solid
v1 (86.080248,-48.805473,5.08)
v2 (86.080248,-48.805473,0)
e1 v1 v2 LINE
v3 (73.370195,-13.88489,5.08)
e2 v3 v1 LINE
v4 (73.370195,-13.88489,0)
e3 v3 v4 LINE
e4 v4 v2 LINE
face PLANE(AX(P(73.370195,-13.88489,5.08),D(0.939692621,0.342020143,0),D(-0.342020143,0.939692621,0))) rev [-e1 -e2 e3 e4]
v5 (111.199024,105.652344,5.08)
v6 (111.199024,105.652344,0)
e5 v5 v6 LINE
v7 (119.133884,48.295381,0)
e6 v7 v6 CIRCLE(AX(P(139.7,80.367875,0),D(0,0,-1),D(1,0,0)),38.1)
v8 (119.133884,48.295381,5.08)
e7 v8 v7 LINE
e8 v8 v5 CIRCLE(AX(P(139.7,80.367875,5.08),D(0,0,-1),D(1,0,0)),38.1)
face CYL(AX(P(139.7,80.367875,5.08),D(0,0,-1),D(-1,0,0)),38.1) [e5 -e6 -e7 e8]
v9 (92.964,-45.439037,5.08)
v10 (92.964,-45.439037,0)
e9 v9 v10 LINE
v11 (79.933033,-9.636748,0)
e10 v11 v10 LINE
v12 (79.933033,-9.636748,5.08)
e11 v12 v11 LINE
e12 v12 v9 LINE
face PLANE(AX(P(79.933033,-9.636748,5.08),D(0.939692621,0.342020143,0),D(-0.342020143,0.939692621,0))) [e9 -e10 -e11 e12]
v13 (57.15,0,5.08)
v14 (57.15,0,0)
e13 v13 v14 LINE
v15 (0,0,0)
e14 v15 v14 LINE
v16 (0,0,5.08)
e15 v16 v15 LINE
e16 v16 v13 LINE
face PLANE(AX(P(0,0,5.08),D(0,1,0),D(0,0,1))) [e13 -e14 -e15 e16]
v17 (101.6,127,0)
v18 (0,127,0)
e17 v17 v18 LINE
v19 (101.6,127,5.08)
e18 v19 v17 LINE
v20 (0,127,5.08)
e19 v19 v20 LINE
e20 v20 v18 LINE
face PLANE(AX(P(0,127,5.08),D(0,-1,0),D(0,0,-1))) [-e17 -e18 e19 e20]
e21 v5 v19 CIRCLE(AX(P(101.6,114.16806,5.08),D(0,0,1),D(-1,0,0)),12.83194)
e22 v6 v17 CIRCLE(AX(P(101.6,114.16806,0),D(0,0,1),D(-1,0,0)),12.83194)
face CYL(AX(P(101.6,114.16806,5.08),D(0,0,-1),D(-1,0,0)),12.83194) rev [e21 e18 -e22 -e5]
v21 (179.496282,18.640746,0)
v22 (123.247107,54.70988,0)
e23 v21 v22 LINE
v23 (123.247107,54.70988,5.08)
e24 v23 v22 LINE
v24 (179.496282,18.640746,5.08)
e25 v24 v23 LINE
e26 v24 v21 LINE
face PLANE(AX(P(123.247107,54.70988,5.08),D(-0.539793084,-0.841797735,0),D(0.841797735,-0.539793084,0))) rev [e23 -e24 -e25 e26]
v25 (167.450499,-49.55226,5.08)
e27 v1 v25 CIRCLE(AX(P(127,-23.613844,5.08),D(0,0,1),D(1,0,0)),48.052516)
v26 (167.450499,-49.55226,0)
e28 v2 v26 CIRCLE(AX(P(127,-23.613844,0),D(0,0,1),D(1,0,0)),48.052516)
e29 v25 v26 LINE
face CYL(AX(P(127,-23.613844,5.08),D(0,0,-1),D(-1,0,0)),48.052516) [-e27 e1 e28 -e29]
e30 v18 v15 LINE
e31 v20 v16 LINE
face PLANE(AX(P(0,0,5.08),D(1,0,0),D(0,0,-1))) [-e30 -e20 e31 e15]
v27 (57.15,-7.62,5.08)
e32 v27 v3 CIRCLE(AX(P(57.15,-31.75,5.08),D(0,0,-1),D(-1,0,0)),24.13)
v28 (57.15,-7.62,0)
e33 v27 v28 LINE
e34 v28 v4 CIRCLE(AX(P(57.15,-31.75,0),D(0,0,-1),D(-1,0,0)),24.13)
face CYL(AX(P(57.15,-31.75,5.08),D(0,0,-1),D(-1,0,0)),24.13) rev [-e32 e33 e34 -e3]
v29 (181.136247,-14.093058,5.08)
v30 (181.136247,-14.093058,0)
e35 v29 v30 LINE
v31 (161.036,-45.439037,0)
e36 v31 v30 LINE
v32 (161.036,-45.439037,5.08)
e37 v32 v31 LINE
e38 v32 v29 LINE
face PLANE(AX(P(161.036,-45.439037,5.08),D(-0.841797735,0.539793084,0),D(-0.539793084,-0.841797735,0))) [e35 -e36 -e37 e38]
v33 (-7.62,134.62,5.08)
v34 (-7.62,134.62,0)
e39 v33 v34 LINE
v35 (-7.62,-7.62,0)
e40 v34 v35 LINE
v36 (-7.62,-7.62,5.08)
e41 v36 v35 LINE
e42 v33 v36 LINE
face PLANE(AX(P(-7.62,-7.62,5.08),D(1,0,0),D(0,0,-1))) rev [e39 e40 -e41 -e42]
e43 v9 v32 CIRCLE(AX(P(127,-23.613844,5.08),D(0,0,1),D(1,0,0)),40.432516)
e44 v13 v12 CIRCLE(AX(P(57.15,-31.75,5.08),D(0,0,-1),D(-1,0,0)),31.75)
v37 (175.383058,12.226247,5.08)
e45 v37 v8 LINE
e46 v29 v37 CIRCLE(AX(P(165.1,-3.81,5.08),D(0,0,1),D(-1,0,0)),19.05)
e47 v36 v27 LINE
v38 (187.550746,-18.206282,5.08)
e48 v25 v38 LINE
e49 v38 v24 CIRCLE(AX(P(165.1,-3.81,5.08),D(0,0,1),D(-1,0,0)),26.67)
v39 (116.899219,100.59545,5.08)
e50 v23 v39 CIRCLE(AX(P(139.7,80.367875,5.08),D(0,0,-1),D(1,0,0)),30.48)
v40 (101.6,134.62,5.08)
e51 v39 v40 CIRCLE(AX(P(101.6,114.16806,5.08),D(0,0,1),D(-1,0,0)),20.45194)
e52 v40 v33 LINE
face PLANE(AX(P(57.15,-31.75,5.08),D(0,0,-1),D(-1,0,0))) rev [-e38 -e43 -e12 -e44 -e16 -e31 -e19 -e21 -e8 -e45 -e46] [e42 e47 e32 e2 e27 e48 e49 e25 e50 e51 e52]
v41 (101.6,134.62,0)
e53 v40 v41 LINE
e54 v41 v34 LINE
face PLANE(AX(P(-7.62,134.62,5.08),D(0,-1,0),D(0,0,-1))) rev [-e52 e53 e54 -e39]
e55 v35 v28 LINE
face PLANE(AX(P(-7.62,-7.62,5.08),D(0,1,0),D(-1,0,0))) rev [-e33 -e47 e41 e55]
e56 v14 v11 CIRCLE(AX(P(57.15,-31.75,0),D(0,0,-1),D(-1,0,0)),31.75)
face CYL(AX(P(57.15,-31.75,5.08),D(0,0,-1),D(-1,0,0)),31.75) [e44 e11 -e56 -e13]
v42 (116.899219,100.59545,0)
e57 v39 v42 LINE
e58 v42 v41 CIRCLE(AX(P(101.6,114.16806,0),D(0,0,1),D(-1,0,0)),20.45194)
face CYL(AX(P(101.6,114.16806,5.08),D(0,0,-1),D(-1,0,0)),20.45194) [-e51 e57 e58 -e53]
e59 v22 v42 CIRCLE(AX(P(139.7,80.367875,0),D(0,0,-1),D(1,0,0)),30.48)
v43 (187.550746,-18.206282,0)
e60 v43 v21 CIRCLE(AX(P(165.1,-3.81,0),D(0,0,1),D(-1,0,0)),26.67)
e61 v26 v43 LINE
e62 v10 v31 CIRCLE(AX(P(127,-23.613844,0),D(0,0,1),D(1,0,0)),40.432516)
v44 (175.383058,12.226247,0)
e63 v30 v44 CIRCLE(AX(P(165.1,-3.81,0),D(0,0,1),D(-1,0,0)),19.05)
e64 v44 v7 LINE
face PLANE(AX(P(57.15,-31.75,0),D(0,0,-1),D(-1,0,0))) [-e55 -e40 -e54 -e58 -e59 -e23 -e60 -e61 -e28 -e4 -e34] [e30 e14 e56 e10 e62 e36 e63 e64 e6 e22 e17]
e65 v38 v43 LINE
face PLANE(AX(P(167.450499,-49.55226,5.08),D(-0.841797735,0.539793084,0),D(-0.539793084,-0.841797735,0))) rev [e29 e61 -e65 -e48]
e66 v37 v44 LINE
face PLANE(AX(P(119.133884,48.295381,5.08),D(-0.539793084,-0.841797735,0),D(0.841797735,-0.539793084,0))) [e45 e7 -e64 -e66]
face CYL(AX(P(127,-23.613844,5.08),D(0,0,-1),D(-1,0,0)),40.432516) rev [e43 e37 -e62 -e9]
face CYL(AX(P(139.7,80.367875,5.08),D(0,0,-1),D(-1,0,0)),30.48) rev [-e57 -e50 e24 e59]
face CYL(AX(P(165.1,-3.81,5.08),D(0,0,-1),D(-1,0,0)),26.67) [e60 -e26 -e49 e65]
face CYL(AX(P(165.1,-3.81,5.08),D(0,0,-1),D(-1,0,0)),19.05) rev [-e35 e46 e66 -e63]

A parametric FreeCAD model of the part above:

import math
import FreeCAD as App
import Part
import Sketcher
Q = App.Units.Quantity

doc = App.newDocument("Part")
body = doc.addObject("PartDesign::Body", "Body")

# Sketch on XY plane
sketch1 = doc.addObject("Sketcher::SketchObject", "Sketch")
body.addObject(sketch1)
sketch1.AttachmentSupport = (doc.XY_Plane, [""])
sketch1.MapMode = "FlatFace"
sketch1.addGeometry([
    Part.LineSegment(App.Vector(-8, 135, 0), App.Vector(-8, -8, 0)),  # 0
    Part.LineSegment(App.Vector(-8, -8, 0), App.Vector(57, -8, 0)),  # 1
    Part.ArcOfCircle(Part.Circle(App.Vector(57, -32, 0), App.Vector(0, 0, 1), 24), math.radians(48), math.radians(90)),  # 2
    Part.LineSegment(App.Vector(73, -14, 0), App.Vector(86, -49, 0)),  # 3
    Part.ArcOfCircle(Part.Circle(App.Vector(127, -24, 0), App.Vector(0, 0, 1), 48), math.radians(-148), math.radians(-33)),  # 4
    Part.LineSegment(App.Vector(167, -50, 0), App.Vector(188, -18, 0)),  # 5
    Part.ArcOfCircle(Part.Circle(App.Vector(165, -4, 0), App.Vector(0, 0, 1), 27), math.radians(-33), math.radians(57)),  # 6
    Part.LineSegment(App.Vector(179, 19, 0), App.Vector(123, 55, 0)),  # 7
    Part.ArcOfCircle(Part.Circle(App.Vector(140, 80, 0), App.Vector(0, 0, 1), 30), math.radians(138), math.radians(237)),  # 8
    Part.ArcOfCircle(Part.Circle(App.Vector(102, 114, 0), App.Vector(0, 0, 1), 20), math.radians(-42), math.radians(90)),  # 9
    Part.LineSegment(App.Vector(102, 135, 0), App.Vector(-8, 135, 0)),  # 10
    Part.LineSegment(App.Vector(0, 0, 0), App.Vector(0, 127, 0)),  # 11
    Part.LineSegment(App.Vector(0, 127, 0), App.Vector(102, 127, 0)),  # 12
    Part.ArcOfCircle(Part.Circle(App.Vector(102, 114, 0), App.Vector(0, 0, 1), 13), math.radians(-42), math.radians(90)),  # 13
    Part.ArcOfCircle(Part.Circle(App.Vector(140, 80, 0), App.Vector(0, 0, 1), 38), math.radians(138), math.radians(237)),  # 14
    Part.LineSegment(App.Vector(119, 48, 0), App.Vector(175, 12, 0)),  # 15
    Part.ArcOfCircle(Part.Circle(App.Vector(165, -4, 0), App.Vector(0, 0, 1), 19), math.radians(-33), math.radians(57)),  # 16
    Part.LineSegment(App.Vector(181, -14, 0), App.Vector(161, -45, 0)),  # 17
    Part.ArcOfCircle(Part.Circle(App.Vector(127, -24, 0), App.Vector(0, 0, 1), 40), math.radians(-147), math.radians(-33)),  # 18
    Part.LineSegment(App.Vector(93, -45, 0), App.Vector(80, -10, 0)),  # 19
    Part.ArcOfCircle(Part.Circle(App.Vector(57, -32, 0), App.Vector(0, 0, 1), 32), math.radians(44), math.radians(90)),  # 20
    Part.LineSegment(App.Vector(57, 0, 0), App.Vector(0, 0, 0)),  # 21
], False)
sketch1.addConstraint([
    Sketcher.Constraint("Coincident", 0, 2, 1, 1),
    Sketcher.Constraint("Tangent", 1, 2, 2, 2),
    Sketcher.Constraint("Coincident", 2, 1, 3, 1),
    Sketcher.Constraint("Coincident", 3, 2, 4, 1),
    Sketcher.Constraint("Tangent", 4, 2, 5, 1),
    Sketcher.Constraint("Tangent", 5, 2, 6, 1),
    Sketcher.Constraint("Tangent", 6, 2, 7, 1),
    Sketcher.Constraint("Tangent", 7, 2, 8, 2),
    Sketcher.Constraint("Tangent", 8, 1, 9, 1),
    Sketcher.Constraint("Tangent", 9, 2, 10, 1),
    Sketcher.Constraint("Coincident", 10, 2, 0, 1),
    Sketcher.Constraint("Coincident", 11, 2, 12, 1),
    Sketcher.Constraint("Tangent", 12, 2, 13, 2),
    Sketcher.Constraint("Tangent", 13, 1, 14, 1),
    Sketcher.Constraint("Tangent", 14, 2, 15, 1),
    Sketcher.Constraint("Tangent", 15, 2, 16, 2),
    Sketcher.Constraint("Tangent", 16, 1, 17, 1),
    Sketcher.Constraint("Tangent", 17, 2, 18, 2),
    Sketcher.Constraint("Coincident", 18, 1, 19, 1),
    Sketcher.Constraint("Coincident", 19, 2, 20, 1),
    Sketcher.Constraint("Tangent", 20, 2, 21, 1),
    Sketcher.Constraint("Coincident", 21, 2, 11, 1),
    Sketcher.Constraint("Vertical", 0),
    Sketcher.Constraint("Horizontal", 1),
    Sketcher.Constraint("Horizontal", 10),
    Sketcher.Constraint("Vertical", 11),
    Sketcher.Constraint("Horizontal", 12),
    Sketcher.Constraint("Horizontal", 21),
    Sketcher.Constraint("Coincident", 21, 2, -1, 1),
    Sketcher.Constraint("Coincident", 13, 3, 9, 3),
    Sketcher.Constraint("Coincident", 14, 3, 8, 3),
    Sketcher.Constraint("Coincident", 16, 3, 6, 3),
    Sketcher.Constraint("Coincident", 18, 3, 4, 3),
    Sketcher.Constraint("Coincident", 20, 3, 2, 3),
    Sketcher.Constraint("Perpendicular", 5, 7),
    Sketcher.Constraint("Parallel", 7, 15),
    Sketcher.Constraint("Perpendicular", 15, 17),
    Sketcher.Constraint("Parallel", 3, 19),
    Sketcher.Constraint("Horizontal", 17, 2, 18, 1),
    Sketcher.Constraint("Radius", 8, Q("1.2 in")),
    Sketcher.Constraint("Radius", 14, Q("1.5 in")),
    Sketcher.Constraint("DistanceX", 12, 1, 12, 2, Q("4 in")),
    Sketcher.Constraint("DistanceY", 11, 1, 11, 2, Q("5 in")),
    Sketcher.Constraint("Radius", 2, Q("0.95 in")),
    Sketcher.Constraint("Radius", 6, Q("1.05 in")),
    Sketcher.Constraint("Radius", 20, Q("1.25 in")),
    Sketcher.Constraint("DistanceX", 10, 2, 10, 1, Q("4.3 in")),
    Sketcher.Constraint("DistanceX", -1, 1, 4, 3, Q("5 in")),
    Sketcher.Constraint("Angle", 3, Q("-70 deg")),
    Sketcher.Constraint("DistanceX", 8, 3, 6, 3, Q("1 in")),
    Sketcher.Constraint("Distance", 19, Q("1.5 in")),
    Sketcher.Constraint("DistanceX", 1, 1, 1, 2, Q("2.55 in")),
    Sketcher.Constraint("DistanceX", -1, 1, 6, 3, Q("6.5 in")),
    Sketcher.Constraint("DistanceY", 2, 3, 6, 3, Q("1.1 in")),
    Sketcher.Constraint("DistanceX", -1, 1, 17, 2, Q("6.34 in")),
    Sketcher.Constraint("Distance", 3, Q("37.161708 mm")),
])
pad1 = doc.addObject("PartDesign::Pad", "Pad")
body.addObject(pad1)
pad1.Profile = sketch1
pad1.Length = Q("0.2 in")

doc.recompute()
